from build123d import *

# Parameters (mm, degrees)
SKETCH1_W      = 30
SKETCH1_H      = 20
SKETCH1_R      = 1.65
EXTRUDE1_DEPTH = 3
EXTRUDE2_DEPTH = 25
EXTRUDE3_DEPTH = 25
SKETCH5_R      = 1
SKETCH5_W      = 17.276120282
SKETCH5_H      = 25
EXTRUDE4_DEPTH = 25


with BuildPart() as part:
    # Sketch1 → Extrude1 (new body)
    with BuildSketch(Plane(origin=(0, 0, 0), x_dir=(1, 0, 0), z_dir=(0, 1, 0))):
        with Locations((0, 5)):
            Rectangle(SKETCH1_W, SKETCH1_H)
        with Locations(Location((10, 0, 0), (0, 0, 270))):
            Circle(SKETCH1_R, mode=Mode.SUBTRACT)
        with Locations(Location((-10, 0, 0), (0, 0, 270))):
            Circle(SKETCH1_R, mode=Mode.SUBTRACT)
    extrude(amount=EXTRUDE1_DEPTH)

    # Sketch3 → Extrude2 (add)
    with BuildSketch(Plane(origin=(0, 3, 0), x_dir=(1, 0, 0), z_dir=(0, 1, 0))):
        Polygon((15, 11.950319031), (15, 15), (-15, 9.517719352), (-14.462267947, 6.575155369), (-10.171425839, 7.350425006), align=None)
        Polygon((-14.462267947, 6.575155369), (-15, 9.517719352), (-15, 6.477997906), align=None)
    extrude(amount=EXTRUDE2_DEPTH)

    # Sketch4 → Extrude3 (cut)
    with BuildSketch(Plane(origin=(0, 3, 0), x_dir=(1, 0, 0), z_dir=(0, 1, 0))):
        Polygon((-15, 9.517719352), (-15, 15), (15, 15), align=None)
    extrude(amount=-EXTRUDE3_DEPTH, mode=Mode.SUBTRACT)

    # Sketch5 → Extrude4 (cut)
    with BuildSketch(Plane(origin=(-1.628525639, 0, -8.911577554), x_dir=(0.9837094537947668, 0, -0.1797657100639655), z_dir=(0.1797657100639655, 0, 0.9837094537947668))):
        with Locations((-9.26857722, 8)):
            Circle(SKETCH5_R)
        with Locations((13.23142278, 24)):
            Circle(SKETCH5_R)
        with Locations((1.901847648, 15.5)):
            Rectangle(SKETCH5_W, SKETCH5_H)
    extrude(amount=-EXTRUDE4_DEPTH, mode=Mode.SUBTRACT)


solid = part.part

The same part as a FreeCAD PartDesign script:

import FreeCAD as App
import Part
import Sketcher

V = App.Vector


def add_polygon(sketch, points):
    """Adds a closed chain of lines whose ends are joined by coincident constraints."""
    first, n = sketch.GeometryCount, len(points)
    for a, b in zip(points, points[1:] + points[:1]):
        sketch.addGeometry(Part.LineSegment(App.Vector(*a, 0), App.Vector(*b, 0)), False)
    for i in range(n):
        sketch.addConstraint(Sketcher.Constraint("Coincident", first + i, 2, first + (i + 1) % n, 1))

doc = App.newDocument("Part")
params = doc.addObject("Spreadsheet::Sheet", "Params")
for row, (alias, value) in enumerate([
    ("sketch1_diameter", "3.3 mm"),
    ("sketch1_width", "30 mm"),
    ("sketch1_height", "20 mm"),
    ("pad1_length", "3 mm"),
    ("pad2_length", "25 mm"),
    ("sketch3_width", "30 mm"),
    ("pocket1_length", "25 mm"),
    ("sketch4_diameter", "2 mm"),
    ("sketch4_height", "25 mm"),
    ("pocket2_length", "25 mm"),
], start=1):
    params.set(f"A{row}", alias)
    params.set(f"B{row}", "=" + value)
    params.setAlias(f"B{row}", alias)

body = doc.addObject("PartDesign::Body", "Body")

# Sketch on XZ plane
sketch1 = body.newObject("Sketcher::SketchObject", "Sketch")
sketch1.AttachmentSupport = (doc.getObject("XZ_Plane"), [""])
sketch1.MapMode = "FlatFace"
add_polygon(sketch1, [(-15, -15), (-15, 5), (15, 5), (15, -15)])  # lines 0-3
sketch1.addGeometry(Part.Circle(V(-10, 0, 0), V(0, 0, 1), 1.6), False)  # 4
sketch1.addGeometry(Part.Circle(V(10, 0, 0), V(0, 0, 1), 1.6), False)  # 5
sketch1.addConstraint([
    Sketcher.Constraint("Vertical", 0),
    Sketcher.Constraint("Horizontal", 1),
    Sketcher.Constraint("Vertical", 2),
    Sketcher.Constraint("Horizontal", 3),
    Sketcher.Constraint("Equal", 4, 5),
    Sketcher.Constraint("Symmetric", 4, 3, 5, 3, -1, 1),
    Sketcher.Constraint("PointOnObject", 4, 3, -1),
    Sketcher.Constraint("Diameter", 4, 3.3),
    Sketcher.Constraint("DistanceX", 1, 1, 1, 2, 30.0),
    Sketcher.Constraint("DistanceY", 0, 1, 0, 2, 20.0),
    Sketcher.Constraint("DistanceX", 4, 3, -1, 1, 10.0),
    Sketcher.Constraint("DistanceX", 0, 2, -1, 1, 15.0),
    Sketcher.Constraint("DistanceY", -1, 1, 0, 2, 5.0),
])
sketch1.setExpression("Constraints[11]", "Params.sketch1_diameter")
sketch1.setExpression("Constraints[12]", "Params.sketch1_width")
sketch1.setExpression("Constraints[13]", "Params.sketch1_height")
pad1 = body.newObject("PartDesign::Pad", "Pad")
pad1.Profile = sketch1
pad1.setExpression("Length", "Params.pad1_length")
pad1.Reversed = True

# Sketch on XZ plane
sketch2 = body.newObject("Sketcher::SketchObject", "Sketch001")
sketch2.AttachmentSupport = (doc.getObject("XZ_Plane"), [""])
sketch2.MapMode = "FlatFace"
sketch2.AttachmentOffset = App.Placement(V(0, 0, -3), App.Rotation())
add_polygon(sketch2, [(15, -12), (15, -15), (-15, -9.5), (-15, -6.5), (-14.5, -6.6), (-10.2, -7.4)])  # lines 0-5
sketch2.addConstraint([
    Sketcher.Constraint("Vertical", 0),
    Sketcher.Constraint("Vertical", 2),
    Sketcher.Constraint("Parallel", 3, 4),
    Sketcher.Constraint("Parallel", 1, 5),
    Sketcher.Constraint("DistanceX", -1, 1, 0, 2, 15.0),
    Sketcher.Constraint("DistanceY", 0, 2, -1, 1, 15.0),
    Sketcher.Constraint("DistanceX", 1, 2, -1, 1, 15.0),
    Sketcher.Constraint("DistanceY", 0, 2, 0, 1, 3.049681),
    Sketcher.Constraint("DistanceY", 2, 1, 2, 2, 3.039721),
    Sketcher.Constraint("DistanceY", 5, 2, 1, 2, 2.4326),
    Sketcher.Constraint("Distance", 3, 0.546439),
    Sketcher.Constraint("DistanceY", 4, 2, 3, 2, 0.77527),
])
pad2 = body.newObject("PartDesign::Pad", "Pad001")
pad2.Profile = sketch2
pad2.setExpression("Length", "Params.pad2_length")
pad2.Reversed = True

# Sketch on XZ plane
sketch3 = body.newObject("Sketcher::SketchObject", "Sketch002")
sketch3.AttachmentSupport = (doc.getObject("XZ_Plane"), [""])
sketch3.MapMode = "FlatFace"
sketch3.AttachmentOffset = App.Placement(V(0, 0, -3), App.Rotation())
add_polygon(sketch3, [(-15, -15), (-15, -10), (15, -15)])  # lines 0-2
sketch3.addConstraint([
    Sketcher.Constraint("Vertical", 0),
    Sketcher.Constraint("Horizontal", 2),
    Sketcher.Constraint("DistanceX", 2, 2, 2, 1, 30.0),
    Sketcher.Constraint("DistanceX", 0, 2, -1, 1, 15.0),
    Sketcher.Constraint("DistanceY", 1, 2, -1, 1, 15.0),
    Sketcher.Constraint("DistanceY", 0, 1, 0, 2, 5.482281),
])
sketch3.setExpression("Constraints[5]", "Params.sketch3_width")
pocket1 = body.newObject("PartDesign::Pocket", "Pocket")
pocket1.Profile = sketch3
pocket1.setExpression("Length", "Params.pocket1_length")
pocket1.Reversed = True

# Sketch on an angled plane
sketch4 = body.newObject("Sketcher::SketchObject", "Sketch003")
sketch4.Placement = App.Placement(V(-1.628526, 0, -8.911578), App.Rotation(V(0.983709454, 0, -0.17976571), V(0, 1, 0), V(0.17976571, 0, 0.983709454), "ZXY"))
sketch4.addGeometry(Part.Circle(V(-9.3, 8, 0), V(0, 0, 1), 1), False)  # 0
sketch4.addGeometry(Part.Circle(V(13.2, 24, 0), V(0, 0, 1), 1), False)  # 1
add_polygon(sketch4, [(-6.7, 28), (-6.7, 3), (10.5, 3), (10.5, 28)])  # lines 2-5
sketch4.addConstraint([
    Sketcher.Constraint("Vertical", 2),
    Sketcher.Constraint("Horizontal", 3),
    Sketcher.Constraint("Vertical", 4),
    Sketcher.Constraint("Horizontal", 5),
    Sketcher.Constraint("Equal", 0, 1),
    Sketcher.Constraint("Diameter", 0, 2.0),
    Sketcher.Constraint("DistanceY", 2, 2, 2, 1, 25.0),
    Sketcher.Constraint("DistanceY", -1, 1, 0, 3, 8.0),
    Sketcher.Constraint("DistanceY", -1, 1, 1, 3, 24.0),
    Sketcher.Constraint("DistanceY", -1, 1, 2, 2, 3.0),
    Sketcher.Constraint("DistanceX", 0, 3, 1, 3, 22.5),
    Sketcher.Constraint("DistanceX", 3, 1, 3, 2, 17.27612),
    Sketcher.Constraint("DistanceX", 0, 3, -1, 1, 9.268577),
    Sketcher.Constraint("DistanceX", 2, 2, -1, 1, 6.736212),
])
sketch4.setExpression("Constraints[9]", "Params.sketch4_diameter")
sketch4.setExpression("Constraints[10]", "Params.sketch4_height")
pocket2 = body.newObject("PartDesign::Pocket", "Pocket001")
pocket2.Profile = sketch4
pocket2.setExpression("Length", "Params.pocket2_length")

doc.recompute()
